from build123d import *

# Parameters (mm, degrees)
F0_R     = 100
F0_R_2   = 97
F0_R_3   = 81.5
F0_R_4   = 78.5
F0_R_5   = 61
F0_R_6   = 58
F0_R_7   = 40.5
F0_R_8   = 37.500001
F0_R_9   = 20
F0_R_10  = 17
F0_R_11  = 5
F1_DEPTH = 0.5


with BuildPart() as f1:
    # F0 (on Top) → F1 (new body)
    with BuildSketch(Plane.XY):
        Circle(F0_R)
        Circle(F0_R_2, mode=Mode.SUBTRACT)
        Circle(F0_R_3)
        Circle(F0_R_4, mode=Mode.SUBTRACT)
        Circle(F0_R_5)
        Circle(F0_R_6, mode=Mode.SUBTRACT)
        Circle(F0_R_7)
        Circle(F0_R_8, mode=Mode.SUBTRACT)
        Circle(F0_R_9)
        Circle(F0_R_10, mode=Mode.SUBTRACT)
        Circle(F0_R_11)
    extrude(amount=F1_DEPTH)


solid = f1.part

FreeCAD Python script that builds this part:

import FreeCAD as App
import Part
import Sketcher

V = App.Vector

doc = App.newDocument("Part")
body = doc.addObject("PartDesign::Body", "Body")
body.AllowCompound = True

sketch1 = body.newObject("Sketcher::SketchObject", "Sketch")
sketch1.AttachmentSupport = (doc.getObject("XY_Plane"), [""])
sketch1.MapMode = "FlatFace"
sketch1.addGeometry(Part.Circle(V(0, 0, 0), V(0, 0, 1), 100), False)
sketch1.addGeometry(Part.Circle(V(0, 0, 0), V(0, 0, 1), 97), False)
sketch1.addGeometry(Part.Circle(V(0, 0, 0), V(0, 0, 1), 81.5), False)
sketch1.addGeometry(Part.Circle(V(0, 0, 0), V(0, 0, 1), 78.5), False)
sketch1.addGeometry(Part.Circle(V(0, 0, 0), V(0, 0, 1), 61), False)
sketch1.addGeometry(Part.Circle(V(0, 0, 0), V(0, 0, 1), 58), False)
sketch1.addGeometry(Part.Circle(V(0, 0, 0), V(0, 0, 1), 40.5), False)
sketch1.addGeometry(Part.Circle(V(0, 0, 0), V(0, 0, 1), 37.500001), False)
sketch1.addGeometry(Part.Circle(V(0, 0, 0), V(0, 0, 1), 20), False)
sketch1.addGeometry(Part.Circle(V(0, 0, 0), V(0, 0, 1), 17), False)
sketch1.addGeometry(Part.Circle(V(0, 0, 0), V(0, 0, 1), 5), False)
sketch1.addConstraint(Sketcher.Constraint("Coincident", 0, 3, -1, 1))
sketch1.addConstraint(Sketcher.Constraint("Coincident", 1, 3, -1, 1))
sketch1.addConstraint(Sketcher.Constraint("Coincident", 2, 3, -1, 1))
sketch1.addConstraint(Sketcher.Constraint("Coincident", 3, 3, -1, 1))
sketch1.addConstraint(Sketcher.Constraint("Coincident", 4, 3, -1, 1))
sketch1.addConstraint(Sketcher.Constraint("Coincident", 5, 3, -1, 1))
sketch1.addConstraint(Sketcher.Constraint("Coincident", 6, 3, -1, 1))
sketch1.addConstraint(Sketcher.Constraint("Coincident", 7, 3, -1, 1))
sketch1.addConstraint(Sketcher.Constraint("Coincident", 8, 3, -1, 1))
sketch1.addConstraint(Sketcher.Constraint("Coincident", 9, 3, -1, 1))
sketch1.addConstraint(Sketcher.Constraint("Coincident", 10, 3, -1, 1))
sketch1.addConstraint(Sketcher.Constraint("Diameter", 0, 200.0))
sketch1.addConstraint(Sketcher.Constraint("Diameter", 1, 194.0))
sketch1.addConstraint(Sketcher.Constraint("Diameter", 2, 163.0))
sketch1.addConstraint(Sketcher.Constraint("Diameter", 3, 157.0))
sketch1.addConstraint(Sketcher.Constraint("Diameter", 4, 122.0))
sketch1.addConstraint(Sketcher.Constraint("Diameter", 5, 116.0))
sketch1.addConstraint(Sketcher.Constraint("Diameter", 6, 81.0))
sketch1.addConstraint(Sketcher.Constraint("Diameter", 7, 75.000002))
sketch1.addConstraint(Sketcher.Constraint("Diameter", 8, 40.0))
sketch1.addConstraint(Sketcher.Constraint("Diameter", 9, 34.0))
sketch1.addConstraint(Sketcher.Constraint("Diameter", 10, 10.0))
pad1 = body.newObject("PartDesign::Pad", "Pad")
pad1.Profile = sketch1
pad1.Length = 0.5

doc.recompute()
